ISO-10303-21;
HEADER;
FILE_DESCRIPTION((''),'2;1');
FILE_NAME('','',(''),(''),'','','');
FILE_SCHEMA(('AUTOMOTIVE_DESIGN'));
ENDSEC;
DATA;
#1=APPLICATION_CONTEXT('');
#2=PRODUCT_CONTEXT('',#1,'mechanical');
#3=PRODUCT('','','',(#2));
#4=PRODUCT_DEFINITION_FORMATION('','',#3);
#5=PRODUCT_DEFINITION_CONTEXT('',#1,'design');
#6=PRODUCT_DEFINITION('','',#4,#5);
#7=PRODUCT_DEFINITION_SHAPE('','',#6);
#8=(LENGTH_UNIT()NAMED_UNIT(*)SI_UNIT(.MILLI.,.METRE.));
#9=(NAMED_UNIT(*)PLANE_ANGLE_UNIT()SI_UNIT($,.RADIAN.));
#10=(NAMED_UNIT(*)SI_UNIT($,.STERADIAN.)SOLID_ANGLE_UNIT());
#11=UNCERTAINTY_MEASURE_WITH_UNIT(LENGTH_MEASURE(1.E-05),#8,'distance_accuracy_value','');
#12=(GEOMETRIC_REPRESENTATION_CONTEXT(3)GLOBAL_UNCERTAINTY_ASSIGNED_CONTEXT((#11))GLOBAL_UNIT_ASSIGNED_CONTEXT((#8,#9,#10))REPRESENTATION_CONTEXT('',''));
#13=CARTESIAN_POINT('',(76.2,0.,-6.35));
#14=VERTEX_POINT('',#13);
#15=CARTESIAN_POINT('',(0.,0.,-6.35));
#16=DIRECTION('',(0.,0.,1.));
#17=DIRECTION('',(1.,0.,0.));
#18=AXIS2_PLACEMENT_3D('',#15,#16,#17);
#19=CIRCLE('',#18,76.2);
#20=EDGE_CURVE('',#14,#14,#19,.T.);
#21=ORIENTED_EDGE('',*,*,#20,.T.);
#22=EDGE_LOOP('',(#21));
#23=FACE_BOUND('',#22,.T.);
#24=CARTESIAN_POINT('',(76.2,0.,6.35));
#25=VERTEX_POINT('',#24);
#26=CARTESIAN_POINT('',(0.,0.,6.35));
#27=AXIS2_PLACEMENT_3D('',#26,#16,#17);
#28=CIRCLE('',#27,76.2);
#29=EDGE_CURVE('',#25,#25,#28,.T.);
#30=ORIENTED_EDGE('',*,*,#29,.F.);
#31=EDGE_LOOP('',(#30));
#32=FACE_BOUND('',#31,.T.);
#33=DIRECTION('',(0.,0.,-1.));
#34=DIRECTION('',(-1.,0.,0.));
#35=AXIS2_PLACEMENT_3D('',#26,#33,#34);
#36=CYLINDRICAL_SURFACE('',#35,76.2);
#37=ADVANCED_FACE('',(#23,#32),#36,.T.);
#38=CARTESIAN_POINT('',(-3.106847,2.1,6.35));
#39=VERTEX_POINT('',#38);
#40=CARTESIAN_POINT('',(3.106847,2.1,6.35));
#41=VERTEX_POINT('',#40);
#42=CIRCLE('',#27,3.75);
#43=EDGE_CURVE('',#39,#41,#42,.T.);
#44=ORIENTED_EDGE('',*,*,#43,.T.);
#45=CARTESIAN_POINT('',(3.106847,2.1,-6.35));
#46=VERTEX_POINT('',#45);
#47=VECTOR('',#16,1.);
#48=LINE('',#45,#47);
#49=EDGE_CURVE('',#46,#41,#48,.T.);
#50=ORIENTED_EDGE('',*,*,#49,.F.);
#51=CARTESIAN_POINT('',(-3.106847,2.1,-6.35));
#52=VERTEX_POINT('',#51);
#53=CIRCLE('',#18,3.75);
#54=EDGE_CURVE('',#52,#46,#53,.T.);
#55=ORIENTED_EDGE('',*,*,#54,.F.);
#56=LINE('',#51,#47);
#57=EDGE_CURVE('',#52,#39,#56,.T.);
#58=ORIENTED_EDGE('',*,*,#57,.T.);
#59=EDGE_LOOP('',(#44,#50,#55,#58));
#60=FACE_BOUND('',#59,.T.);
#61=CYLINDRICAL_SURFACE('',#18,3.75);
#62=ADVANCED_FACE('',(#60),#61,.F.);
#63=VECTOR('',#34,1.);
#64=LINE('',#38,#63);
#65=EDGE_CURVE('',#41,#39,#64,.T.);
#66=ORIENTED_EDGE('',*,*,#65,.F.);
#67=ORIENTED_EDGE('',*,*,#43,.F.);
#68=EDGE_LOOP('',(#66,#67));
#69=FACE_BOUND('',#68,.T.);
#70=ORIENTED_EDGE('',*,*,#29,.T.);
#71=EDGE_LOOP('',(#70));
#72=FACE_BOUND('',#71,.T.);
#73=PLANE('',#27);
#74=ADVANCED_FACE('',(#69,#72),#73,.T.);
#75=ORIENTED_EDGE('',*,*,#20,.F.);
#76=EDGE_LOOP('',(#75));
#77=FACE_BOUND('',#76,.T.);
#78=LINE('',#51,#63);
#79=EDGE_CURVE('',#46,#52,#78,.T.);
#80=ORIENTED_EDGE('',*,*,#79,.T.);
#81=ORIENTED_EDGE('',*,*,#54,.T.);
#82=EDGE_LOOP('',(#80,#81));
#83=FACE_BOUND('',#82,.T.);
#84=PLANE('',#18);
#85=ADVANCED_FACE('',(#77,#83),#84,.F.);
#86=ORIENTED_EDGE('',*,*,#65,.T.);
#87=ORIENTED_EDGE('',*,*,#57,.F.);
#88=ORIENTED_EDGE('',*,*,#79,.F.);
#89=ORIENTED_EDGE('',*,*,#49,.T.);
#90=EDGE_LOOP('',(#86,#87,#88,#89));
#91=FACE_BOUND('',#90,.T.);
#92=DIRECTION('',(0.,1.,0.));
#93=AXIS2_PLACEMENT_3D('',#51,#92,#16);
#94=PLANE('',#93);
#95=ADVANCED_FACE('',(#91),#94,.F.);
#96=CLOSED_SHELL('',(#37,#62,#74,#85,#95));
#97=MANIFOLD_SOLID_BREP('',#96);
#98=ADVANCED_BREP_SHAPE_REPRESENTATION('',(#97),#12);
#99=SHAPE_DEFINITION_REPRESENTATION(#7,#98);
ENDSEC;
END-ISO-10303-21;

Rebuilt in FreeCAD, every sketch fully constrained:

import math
import FreeCAD as App
import Part
import Sketcher
from FreeCAD import Vector
Q = App.Units.Quantity

doc = App.newDocument("Part")
body = doc.addObject("PartDesign::Body", "Body")

# Sketch on XY plane
sketch1 = doc.addObject("Sketcher::SketchObject", "Sketch")
body.addObject(sketch1)
sketch1.AttachmentSupport = (doc.XY_Plane, [""])
sketch1.MapMode = "FlatFace"
sketch1.addGeometry(Part.Circle(Vector(0, 0, 0), Vector(0, 0, 1), 76.2), False)
sketch1.addConstraint(Sketcher.Constraint("Coincident", 0, 3, -1, 1))
sketch1.addConstraint(Sketcher.Constraint("Diameter", 0, Q("6 in")))
pad1 = doc.addObject("PartDesign::Pad", "Pad")
body.addObject(pad1)
pad1.Profile = sketch1
pad1.Length = Q("0.5 in")
pad1.Midplane = True

# Sketch on XY plane
sketch2 = doc.addObject("Sketcher::SketchObject", "Sketch001")
body.addObject(sketch2)
sketch2.AttachmentSupport = (doc.XY_Plane, [""])
sketch2.MapMode = "FlatFace"
sketch2.AttachmentOffset = App.Placement(Vector(0, 0, 0.25 * 25.4), App.Rotation())
sketch2.addGeometry(Part.LineSegment(Vector(3.106847, 2.1, 0), Vector(-3.106847, 2.1, 0)), False)
sketch2.addGeometry(Part.ArcOfCircle(Part.Circle(Vector(0, 0, 0), Vector(0, 0, 1), 3.75), math.radians(145.944202), math.radians(394.055798)), False)
sketch2.addConstraint(Sketcher.Constraint("Coincident", 0, 1, 1, 2))
sketch2.addConstraint(Sketcher.Constraint("Coincident", 1, 1, 0, 2))
sketch2.addConstraint(Sketcher.Constraint("Horizontal", 0))
sketch2.addConstraint(Sketcher.Constraint("Coincident", 1, 3, -1, 1))
sketch2.addConstraint(Sketcher.Constraint("Radius", 1, Q("3.75 mm")))
sketch2.addConstraint(Sketcher.Constraint("DistanceY", -1, 1, 0, 1, Q("2.1 mm")))
pocket1 = doc.addObject("PartDesign::Pocket", "Pocket")
body.addObject(pocket1)
pocket1.Profile = sketch2
pocket1.Type = "ThroughAll"

doc.recompute()
